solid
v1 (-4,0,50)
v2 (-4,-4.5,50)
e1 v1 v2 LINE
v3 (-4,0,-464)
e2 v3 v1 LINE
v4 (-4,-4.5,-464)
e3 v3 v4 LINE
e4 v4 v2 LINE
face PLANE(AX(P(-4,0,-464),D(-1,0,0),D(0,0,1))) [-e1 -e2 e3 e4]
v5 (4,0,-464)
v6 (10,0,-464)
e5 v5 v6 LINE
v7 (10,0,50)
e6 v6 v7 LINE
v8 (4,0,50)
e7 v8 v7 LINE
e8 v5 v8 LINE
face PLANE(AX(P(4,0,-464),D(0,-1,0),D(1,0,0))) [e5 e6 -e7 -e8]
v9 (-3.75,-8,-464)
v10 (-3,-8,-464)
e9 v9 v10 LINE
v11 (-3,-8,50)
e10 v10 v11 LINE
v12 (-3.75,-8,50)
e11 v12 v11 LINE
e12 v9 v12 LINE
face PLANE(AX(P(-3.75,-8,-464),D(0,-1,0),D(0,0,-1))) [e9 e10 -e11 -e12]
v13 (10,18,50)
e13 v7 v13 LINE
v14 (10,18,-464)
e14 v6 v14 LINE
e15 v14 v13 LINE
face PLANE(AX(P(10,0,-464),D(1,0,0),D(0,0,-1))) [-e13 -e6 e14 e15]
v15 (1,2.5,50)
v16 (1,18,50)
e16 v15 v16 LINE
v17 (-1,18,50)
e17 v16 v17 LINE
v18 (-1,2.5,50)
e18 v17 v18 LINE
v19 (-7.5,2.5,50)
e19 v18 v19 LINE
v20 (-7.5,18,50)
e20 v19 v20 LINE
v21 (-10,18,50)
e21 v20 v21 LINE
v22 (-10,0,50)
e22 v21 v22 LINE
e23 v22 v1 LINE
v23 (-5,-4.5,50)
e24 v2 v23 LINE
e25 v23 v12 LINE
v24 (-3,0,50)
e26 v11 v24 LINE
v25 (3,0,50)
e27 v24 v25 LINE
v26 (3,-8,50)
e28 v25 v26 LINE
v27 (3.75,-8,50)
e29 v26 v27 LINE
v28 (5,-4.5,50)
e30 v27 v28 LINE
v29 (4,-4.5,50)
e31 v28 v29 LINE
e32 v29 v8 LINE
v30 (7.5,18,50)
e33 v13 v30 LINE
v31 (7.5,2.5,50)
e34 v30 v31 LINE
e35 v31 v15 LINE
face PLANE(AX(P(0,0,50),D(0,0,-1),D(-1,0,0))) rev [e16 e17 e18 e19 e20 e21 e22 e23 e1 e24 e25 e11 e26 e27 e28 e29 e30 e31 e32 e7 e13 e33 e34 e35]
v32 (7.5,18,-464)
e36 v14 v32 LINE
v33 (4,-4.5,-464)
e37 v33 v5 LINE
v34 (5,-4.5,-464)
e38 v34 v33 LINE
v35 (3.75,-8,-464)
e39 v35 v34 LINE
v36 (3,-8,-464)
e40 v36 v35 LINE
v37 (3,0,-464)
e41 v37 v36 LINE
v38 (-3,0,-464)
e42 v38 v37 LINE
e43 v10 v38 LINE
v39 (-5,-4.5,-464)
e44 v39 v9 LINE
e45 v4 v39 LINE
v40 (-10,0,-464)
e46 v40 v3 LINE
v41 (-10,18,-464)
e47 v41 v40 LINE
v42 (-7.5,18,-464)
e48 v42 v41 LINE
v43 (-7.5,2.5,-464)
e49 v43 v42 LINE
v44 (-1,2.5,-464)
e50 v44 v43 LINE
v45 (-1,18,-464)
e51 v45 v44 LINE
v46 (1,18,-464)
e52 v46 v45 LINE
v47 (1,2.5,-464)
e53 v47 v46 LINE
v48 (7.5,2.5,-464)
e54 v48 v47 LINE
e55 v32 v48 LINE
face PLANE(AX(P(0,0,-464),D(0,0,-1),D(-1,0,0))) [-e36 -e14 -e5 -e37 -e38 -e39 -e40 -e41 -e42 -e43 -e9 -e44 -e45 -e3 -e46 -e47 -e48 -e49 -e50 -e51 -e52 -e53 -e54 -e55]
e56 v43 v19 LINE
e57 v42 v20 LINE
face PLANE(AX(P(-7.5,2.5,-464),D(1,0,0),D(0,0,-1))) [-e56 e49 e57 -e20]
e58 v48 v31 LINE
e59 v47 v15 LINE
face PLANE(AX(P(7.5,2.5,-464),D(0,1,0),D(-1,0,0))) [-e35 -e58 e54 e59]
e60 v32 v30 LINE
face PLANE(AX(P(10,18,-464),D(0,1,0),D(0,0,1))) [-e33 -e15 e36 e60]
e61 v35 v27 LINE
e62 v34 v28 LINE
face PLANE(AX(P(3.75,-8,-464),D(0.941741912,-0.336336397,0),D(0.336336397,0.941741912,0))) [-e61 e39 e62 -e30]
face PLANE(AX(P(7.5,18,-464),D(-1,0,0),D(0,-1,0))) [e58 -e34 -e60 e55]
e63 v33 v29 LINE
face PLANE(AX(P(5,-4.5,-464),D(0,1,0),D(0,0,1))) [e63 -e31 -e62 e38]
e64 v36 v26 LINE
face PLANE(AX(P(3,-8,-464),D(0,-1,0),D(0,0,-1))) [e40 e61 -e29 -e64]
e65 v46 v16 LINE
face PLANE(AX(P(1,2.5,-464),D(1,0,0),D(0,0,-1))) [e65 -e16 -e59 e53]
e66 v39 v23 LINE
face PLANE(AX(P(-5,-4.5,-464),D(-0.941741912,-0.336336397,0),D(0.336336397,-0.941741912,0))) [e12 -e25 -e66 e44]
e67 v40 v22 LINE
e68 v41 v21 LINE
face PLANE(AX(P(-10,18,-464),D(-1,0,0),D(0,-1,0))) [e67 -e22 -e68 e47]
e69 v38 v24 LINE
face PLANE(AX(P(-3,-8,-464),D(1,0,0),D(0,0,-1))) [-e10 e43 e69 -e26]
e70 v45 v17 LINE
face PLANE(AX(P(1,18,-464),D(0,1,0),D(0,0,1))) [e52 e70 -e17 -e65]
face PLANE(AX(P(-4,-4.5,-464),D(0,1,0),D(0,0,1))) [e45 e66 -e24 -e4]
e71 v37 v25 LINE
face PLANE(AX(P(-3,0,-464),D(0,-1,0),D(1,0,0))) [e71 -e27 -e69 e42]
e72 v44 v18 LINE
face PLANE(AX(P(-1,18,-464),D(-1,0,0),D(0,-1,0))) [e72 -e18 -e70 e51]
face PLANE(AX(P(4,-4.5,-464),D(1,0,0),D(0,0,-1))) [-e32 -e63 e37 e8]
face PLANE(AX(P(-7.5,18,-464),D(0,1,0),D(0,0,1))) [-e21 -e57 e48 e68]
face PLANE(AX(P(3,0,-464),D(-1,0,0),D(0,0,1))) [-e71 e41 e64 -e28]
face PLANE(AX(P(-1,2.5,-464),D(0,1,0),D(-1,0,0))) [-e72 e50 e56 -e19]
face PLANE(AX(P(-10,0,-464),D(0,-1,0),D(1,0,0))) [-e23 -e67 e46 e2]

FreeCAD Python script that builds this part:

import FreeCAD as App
import Part
import Sketcher
Q = App.Units.Quantity


def add_polygon(sketch, points):
    """Adds a closed chain of lines whose ends are joined by coincident constraints."""
    first, n = sketch.GeometryCount, len(points)
    for a, b in zip(points, points[1:] + points[:1]):
        sketch.addGeometry(Part.LineSegment(App.Vector(*a, 0), App.Vector(*b, 0)), False)
    for i in range(n):
        sketch.addConstraint(Sketcher.Constraint("Coincident", first + i, 2, first + (i + 1) % n, 1))

doc = App.newDocument("Part")
params = doc.addObject("Spreadsheet::Sheet", "Params")
for row, (alias, value) in enumerate([
    ("sketch1_width", "6 mm"),
    ("sketch1_width2", "1 mm"),
    ("sketch1_width3", "2 mm"),
    ("sketch1_height", "18 mm"),
    ("sketch1_height2", "8 mm"),
    ("pad1_length", "514 mm"),
], start=1):
    params.set(f"A{row}", alias)
    params.set(f"B{row}", "=" + value)
    params.setAlias(f"B{row}", alias)

body = doc.addObject("PartDesign::Body", "Body")

# Sketch on XY plane
sketch1 = doc.addObject("Sketcher::SketchObject", "Sketch")
body.addObject(sketch1)
sketch1.AttachmentSupport = (doc.XY_Plane, [""])
sketch1.MapMode = "FlatFace"
sketch1.AttachmentOffset = App.Placement(App.Vector(0, 0, 50), App.Rotation())
add_polygon(sketch1, [(-1, 2.5), (-7.5, 2.5), (-7.5, 18), (-10, 18), (-10, 0), (-4, 0), (-4, -4.5), (-5, -4.5), (-3.8, -8), (-3, -8), (-3, 0), (3, 0), (3, -8), (3.8, -8), (5, -4.5), (4, -4.5), (4, 0), (10, 0), (10, 18), (7.5, 18), (7.5, 2.5), (1, 2.5), (1, 18), (-1, 18)])  # lines 0-23
sketch1.addConstraint(Sketcher.Constraint("Horizontal", 0))
sketch1.addConstraint(Sketcher.Constraint("Vertical", 1))
sketch1.addConstraint(Sketcher.Constraint("Horizontal", 2))
sketch1.addConstraint(Sketcher.Constraint("Vertical", 3))
sketch1.addConstraint(Sketcher.Constraint("Horizontal", 4))
sketch1.addConstraint(Sketcher.Constraint("Vertical", 5))
sketch1.addConstraint(Sketcher.Constraint("Horizontal", 6))
sketch1.addConstraint(Sketcher.Constraint("Horizontal", 8))
sketch1.addConstraint(Sketcher.Constraint("Vertical", 9))
sketch1.addConstraint(Sketcher.Constraint("Horizontal", 10))
sketch1.addConstraint(Sketcher.Constraint("Vertical", 11))
sketch1.addConstraint(Sketcher.Constraint("Horizontal", 12))
sketch1.addConstraint(Sketcher.Constraint("Horizontal", 14))
sketch1.addConstraint(Sketcher.Constraint("Vertical", 15))
sketch1.addConstraint(Sketcher.Constraint("Horizontal", 16))
sketch1.addConstraint(Sketcher.Constraint("Vertical", 17))
sketch1.addConstraint(Sketcher.Constraint("Horizontal", 18))
sketch1.addConstraint(Sketcher.Constraint("Vertical", 19))
sketch1.addConstraint(Sketcher.Constraint("Horizontal", 20))
sketch1.addConstraint(Sketcher.Constraint("Vertical", 21))
sketch1.addConstraint(Sketcher.Constraint("Horizontal", 22))
sketch1.addConstraint(Sketcher.Constraint("Vertical", 23))
sketch1.addConstraint(Sketcher.Constraint("Symmetric", 9, 2, 10, 2, -1, 1))
sketch1.addConstraint(Sketcher.Constraint("Symmetric", 4, 2, 15, 2, -1, 1))
sketch1.addConstraint(Sketcher.Constraint("Symmetric", 7, 2, 12, 2, -2))
sketch1.addConstraint(Sketcher.Constraint("Symmetric", 6, 2, 13, 2, -2))
sketch1.addConstraint(Sketcher.Constraint("Symmetric", 3, 2, 16, 2, -2))
sketch1.addConstraint(Sketcher.Constraint("Symmetric", 1, 2, 18, 2, -2))
sketch1.addConstraint(Sketcher.Constraint("Symmetric", 20, 2, 23, 2, -2))
sketch1.addConstraint(Sketcher.Constraint("Horizontal", 18, 2, 21, 2))
sketch1.addConstraint(Sketcher.Constraint("Equal", 4, 10))
sketch1.addConstraint(Sketcher.Constraint("DistanceX", 4, 1, 4, 2, Q("6 mm")))
sketch1.addConstraint(Sketcher.Constraint("DistanceX", 6, 2, 6, 1, Q("1 mm")))
sketch1.addConstraint(Sketcher.Constraint("DistanceX", 22, 2, 22, 1, Q("2 mm")))
sketch1.addConstraint(Sketcher.Constraint("DistanceY", 3, 2, 3, 1, Q("18 mm")))
sketch1.addConstraint(Sketcher.Constraint("DistanceY", 9, 1, 9, 2, Q("8 mm")))
sketch1.addConstraint(Sketcher.Constraint("DistanceX", 0, 2, 0, 1, Q("6.5 mm")))
sketch1.addConstraint(Sketcher.Constraint("DistanceX", 2, 2, 2, 1, Q("2.5 mm")))
sketch1.addConstraint(Sketcher.Constraint("DistanceY", 1, 1, 1, 2, Q("15.5 mm")))
sketch1.addConstraint(Sketcher.Constraint("DistanceY", 5, 2, 5, 1, Q("4.5 mm")))
sketch1.addConstraint(Sketcher.Constraint("DistanceX", 8, 1, 8, 2, Q("0.75 mm")))
sketch1.setExpression("Constraints[55]", "Params.sketch1_width")
sketch1.setExpression("Constraints[56]", "Params.sketch1_width2")
sketch1.setExpression("Constraints[57]", "Params.sketch1_width3")
sketch1.setExpression("Constraints[58]", "Params.sketch1_height")
sketch1.setExpression("Constraints[59]", "Params.sketch1_height2")
pad1 = doc.addObject("PartDesign::Pad", "Pad")
body.addObject(pad1)
pad1.Profile = sketch1
pad1.setExpression("Length", "Params.pad1_length")
pad1.Reversed = True

doc.recompute()
